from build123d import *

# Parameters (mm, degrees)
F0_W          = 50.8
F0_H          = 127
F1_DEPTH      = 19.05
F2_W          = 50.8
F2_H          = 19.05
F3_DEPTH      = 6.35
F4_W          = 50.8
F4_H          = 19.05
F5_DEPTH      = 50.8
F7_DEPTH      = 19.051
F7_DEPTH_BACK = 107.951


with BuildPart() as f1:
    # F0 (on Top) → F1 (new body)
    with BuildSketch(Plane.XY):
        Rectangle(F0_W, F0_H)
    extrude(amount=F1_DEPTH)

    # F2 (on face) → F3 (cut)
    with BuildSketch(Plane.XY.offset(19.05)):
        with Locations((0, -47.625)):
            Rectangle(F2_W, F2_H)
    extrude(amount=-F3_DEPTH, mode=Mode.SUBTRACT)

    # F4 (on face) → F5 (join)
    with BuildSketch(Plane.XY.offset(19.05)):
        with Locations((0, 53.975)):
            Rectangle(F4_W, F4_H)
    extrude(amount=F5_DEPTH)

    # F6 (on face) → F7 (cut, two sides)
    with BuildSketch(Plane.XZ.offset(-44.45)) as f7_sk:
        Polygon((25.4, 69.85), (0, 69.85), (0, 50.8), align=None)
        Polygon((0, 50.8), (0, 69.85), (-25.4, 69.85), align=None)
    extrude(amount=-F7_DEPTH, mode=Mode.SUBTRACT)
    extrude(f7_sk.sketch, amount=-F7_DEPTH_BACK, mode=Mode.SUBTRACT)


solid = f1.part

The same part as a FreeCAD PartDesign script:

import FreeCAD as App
import Part
import Sketcher
Q = App.Units.Quantity

doc = App.newDocument("Part")
params = doc.addObject("Spreadsheet::Sheet", "Params")
for row, (alias, value) in enumerate([
    ("sketch1_width", "2 in"),
    ("sketch1_height", "5 in"),
    ("pad1_length", "0.75 in"),
    ("sketch2_width", "2 in"),
    ("sketch2_height", "0.75 in"),
    ("pocket1_length", "0.25 in"),
    ("sketch3_width", "2 in"),
    ("sketch3_height", "0.75 in"),
    ("pad2_length", "2 in"),
    ("sketch4_width", "2 in"),
    ("sketch4_length", "1.25 in"),
    ("pocket2_length", "19.051 mm"),
    ("pocket3_length", "107.951 mm"),
], start=1):
    params.set(f"A{row}", alias)
    params.set(f"B{row}", "=" + value)
    params.setAlias(f"B{row}", alias)

body = doc.addObject("PartDesign::Body", "Body")

# Sketch on XY plane
sketch1 = body.newObject("Sketcher::SketchObject", "Sketch")
sketch1.AttachmentSupport = (doc.getObject("XY_Plane"), [""])
sketch1.MapMode = "FlatFace"
sketch1.addGeometry([
    Part.LineSegment(App.Vector(-25.4, 63.5, 0), App.Vector(-25.4, -63.5, 0)),
    Part.LineSegment(App.Vector(-25.4, -63.5, 0), App.Vector(25.4, -63.5, 0)),
    Part.LineSegment(App.Vector(25.4, -63.5, 0), App.Vector(25.4, 63.5, 0)),
    Part.LineSegment(App.Vector(25.4, 63.5, 0), App.Vector(-25.4, 63.5, 0)),
], False)
sketch1.addConstraint([
    Sketcher.Constraint("Coincident", 0, 2, 1, 1),
    Sketcher.Constraint("Coincident", 1, 2, 2, 1),
    Sketcher.Constraint("Coincident", 2, 2, 3, 1),
    Sketcher.Constraint("Coincident", 3, 2, 0, 1),
    Sketcher.Constraint("Vertical", 0),
    Sketcher.Constraint("Horizontal", 1),
    Sketcher.Constraint("Vertical", 2),
    Sketcher.Constraint("Horizontal", 3),
    Sketcher.Constraint("Symmetric", 0, 2, 2, 2, -1, 1),
    Sketcher.Constraint("DistanceX", 1, 1, 1, 2, Q("2 in")),
    Sketcher.Constraint("DistanceY", 0, 2, 0, 1, Q("5 in")),
])
sketch1.setExpression("Constraints[9]", "Params.sketch1_width")
sketch1.setExpression("Constraints[10]", "Params.sketch1_height")
pad1 = body.newObject("PartDesign::Pad", "Pad")
pad1.Profile = sketch1
pad1.setExpression("Length", "Params.pad1_length")

# Sketch on XY plane
sketch2 = body.newObject("Sketcher::SketchObject", "Sketch001")
sketch2.AttachmentSupport = (doc.getObject("XY_Plane"), [""])
sketch2.MapMode = "FlatFace"
sketch2.AttachmentOffset = App.Placement(App.Vector(0, 0, 0.75 * 25.4), App.Rotation())
sketch2.addGeometry([
    Part.LineSegment(App.Vector(-25.4, -38.1, 0), App.Vector(-25.4, -57.15, 0)),
    Part.LineSegment(App.Vector(-25.4, -57.15, 0), App.Vector(25.4, -57.15, 0)),
    Part.LineSegment(App.Vector(25.4, -57.15, 0), App.Vector(25.4, -38.1, 0)),
    Part.LineSegment(App.Vector(25.4, -38.1, 0), App.Vector(-25.4, -38.1, 0)),
], False)
sketch2.addConstraint([
    Sketcher.Constraint("Coincident", 0, 2, 1, 1),
    Sketcher.Constraint("Coincident", 1, 2, 2, 1),
    Sketcher.Constraint("Coincident", 2, 2, 3, 1),
    Sketcher.Constraint("Coincident", 3, 2, 0, 1),
    Sketcher.Constraint("Vertical", 0),
    Sketcher.Constraint("Horizontal", 1),
    Sketcher.Constraint("Vertical", 2),
    Sketcher.Constraint("Horizontal", 3),
    Sketcher.Constraint("DistanceX", 1, 1, 1, 2, Q("2 in")),
    Sketcher.Constraint("DistanceX", 0, 2, -1, 1, Q("1 in")),
    Sketcher.Constraint("DistanceY", 0, 2, 0, 1, Q("0.75 in")),
    Sketcher.Constraint("DistanceY", 2, 2, -1, 1, Q("1.5 in")),
])
sketch2.setExpression("Constraints[8]", "Params.sketch2_width")
sketch2.setExpression("Constraints[10]", "Params.sketch2_height")
pocket1 = body.newObject("PartDesign::Pocket", "Pocket")
pocket1.Profile = sketch2
pocket1.setExpression("Length", "Params.pocket1_length")

# Sketch on XY plane
sketch3 = body.newObject("Sketcher::SketchObject", "Sketch002")
sketch3.AttachmentSupport = (doc.getObject("XY_Plane"), [""])
sketch3.MapMode = "FlatFace"
sketch3.AttachmentOffset = App.Placement(App.Vector(0, 0, 0.75 * 25.4), App.Rotation())
sketch3.addGeometry([
    Part.LineSegment(App.Vector(-25.4, 63.5, 0), App.Vector(-25.4, 44.45, 0)),
    Part.LineSegment(App.Vector(-25.4, 44.45, 0), App.Vector(25.4, 44.45, 0)),
    Part.LineSegment(App.Vector(25.4, 44.45, 0), App.Vector(25.4, 63.5, 0)),
    Part.LineSegment(App.Vector(25.4, 63.5, 0), App.Vector(-25.4, 63.5, 0)),
], False)
sketch3.addConstraint([
    Sketcher.Constraint("Coincident", 0, 2, 1, 1),
    Sketcher.Constraint("Coincident", 1, 2, 2, 1),
    Sketcher.Constraint("Coincident", 2, 2, 3, 1),
    Sketcher.Constraint("Coincident", 3, 2, 0, 1),
    Sketcher.Constraint("Vertical", 0),
    Sketcher.Constraint("Horizontal", 1),
    Sketcher.Constraint("Vertical", 2),
    Sketcher.Constraint("Horizontal", 3),
    Sketcher.Constraint("DistanceX", 1, 1, 1, 2, Q("2 in")),
    Sketcher.Constraint("DistanceX", 0, 2, -1, 1, Q("1 in")),
    Sketcher.Constraint("DistanceY", 0, 2, 0, 1, Q("0.75 in")),
    Sketcher.Constraint("DistanceY", -1, 1, 2, 2, Q("2.5 in")),
])
sketch3.setExpression("Constraints[8]", "Params.sketch3_width")
sketch3.setExpression("Constraints[10]", "Params.sketch3_height")
pad2 = body.newObject("PartDesign::Pad", "Pad001")
pad2.Profile = sketch3
pad2.setExpression("Length", "Params.pad2_length")

# Sketch on XZ plane
sketch4 = body.newObject("Sketcher::SketchObject", "Sketch003")
sketch4.AttachmentSupport = (doc.getObject("XZ_Plane"), [""])
sketch4.MapMode = "FlatFace"
sketch4.AttachmentOffset = App.Placement(App.Vector(0, 0, -1.75 * 25.4), App.Rotation())
sketch4.addGeometry([
    Part.LineSegment(App.Vector(25.4, 69.85, 0), App.Vector(-25.4, 69.85, 0)),
    Part.LineSegment(App.Vector(-25.4, 69.85, 0), App.Vector(0, 50.8, 0)),
    Part.LineSegment(App.Vector(0, 50.8, 0), App.Vector(25.4, 69.85, 0)),
], False)
sketch4.addConstraint([
    Sketcher.Constraint("Coincident", 0, 2, 1, 1),
    Sketcher.Constraint("Coincident", 1, 2, 2, 1),
    Sketcher.Constraint("Coincident", 2, 2, 0, 1),
    Sketcher.Constraint("Horizontal", 0),
    Sketcher.Constraint("PointOnObject", 1, 2, -2),
    Sketcher.Constraint("Equal", 1, 2),
    Sketcher.Constraint("DistanceX", 0, 2, 0, 1, Q("2 in")),
    Sketcher.Constraint("DistanceY", -1, 1, 1, 2, Q("2 in")),
    Sketcher.Constraint("Distance", 1, Q("1.25 in")),
])
sketch4.setExpression("Constraints[6]", "Params.sketch4_width")
sketch4.setExpression("Constraints[8]", "Params.sketch4_length")
pocket2 = body.newObject("PartDesign::Pocket", "Pocket001")
pocket2.Profile = sketch4
pocket2.setExpression("Length", "Params.pocket2_length")
pocket3 = body.newObject("PartDesign::Pocket", "Pocket002")
pocket3.Profile = sketch4
pocket3.setExpression("Length", "Params.pocket3_length")

doc.recompute()
